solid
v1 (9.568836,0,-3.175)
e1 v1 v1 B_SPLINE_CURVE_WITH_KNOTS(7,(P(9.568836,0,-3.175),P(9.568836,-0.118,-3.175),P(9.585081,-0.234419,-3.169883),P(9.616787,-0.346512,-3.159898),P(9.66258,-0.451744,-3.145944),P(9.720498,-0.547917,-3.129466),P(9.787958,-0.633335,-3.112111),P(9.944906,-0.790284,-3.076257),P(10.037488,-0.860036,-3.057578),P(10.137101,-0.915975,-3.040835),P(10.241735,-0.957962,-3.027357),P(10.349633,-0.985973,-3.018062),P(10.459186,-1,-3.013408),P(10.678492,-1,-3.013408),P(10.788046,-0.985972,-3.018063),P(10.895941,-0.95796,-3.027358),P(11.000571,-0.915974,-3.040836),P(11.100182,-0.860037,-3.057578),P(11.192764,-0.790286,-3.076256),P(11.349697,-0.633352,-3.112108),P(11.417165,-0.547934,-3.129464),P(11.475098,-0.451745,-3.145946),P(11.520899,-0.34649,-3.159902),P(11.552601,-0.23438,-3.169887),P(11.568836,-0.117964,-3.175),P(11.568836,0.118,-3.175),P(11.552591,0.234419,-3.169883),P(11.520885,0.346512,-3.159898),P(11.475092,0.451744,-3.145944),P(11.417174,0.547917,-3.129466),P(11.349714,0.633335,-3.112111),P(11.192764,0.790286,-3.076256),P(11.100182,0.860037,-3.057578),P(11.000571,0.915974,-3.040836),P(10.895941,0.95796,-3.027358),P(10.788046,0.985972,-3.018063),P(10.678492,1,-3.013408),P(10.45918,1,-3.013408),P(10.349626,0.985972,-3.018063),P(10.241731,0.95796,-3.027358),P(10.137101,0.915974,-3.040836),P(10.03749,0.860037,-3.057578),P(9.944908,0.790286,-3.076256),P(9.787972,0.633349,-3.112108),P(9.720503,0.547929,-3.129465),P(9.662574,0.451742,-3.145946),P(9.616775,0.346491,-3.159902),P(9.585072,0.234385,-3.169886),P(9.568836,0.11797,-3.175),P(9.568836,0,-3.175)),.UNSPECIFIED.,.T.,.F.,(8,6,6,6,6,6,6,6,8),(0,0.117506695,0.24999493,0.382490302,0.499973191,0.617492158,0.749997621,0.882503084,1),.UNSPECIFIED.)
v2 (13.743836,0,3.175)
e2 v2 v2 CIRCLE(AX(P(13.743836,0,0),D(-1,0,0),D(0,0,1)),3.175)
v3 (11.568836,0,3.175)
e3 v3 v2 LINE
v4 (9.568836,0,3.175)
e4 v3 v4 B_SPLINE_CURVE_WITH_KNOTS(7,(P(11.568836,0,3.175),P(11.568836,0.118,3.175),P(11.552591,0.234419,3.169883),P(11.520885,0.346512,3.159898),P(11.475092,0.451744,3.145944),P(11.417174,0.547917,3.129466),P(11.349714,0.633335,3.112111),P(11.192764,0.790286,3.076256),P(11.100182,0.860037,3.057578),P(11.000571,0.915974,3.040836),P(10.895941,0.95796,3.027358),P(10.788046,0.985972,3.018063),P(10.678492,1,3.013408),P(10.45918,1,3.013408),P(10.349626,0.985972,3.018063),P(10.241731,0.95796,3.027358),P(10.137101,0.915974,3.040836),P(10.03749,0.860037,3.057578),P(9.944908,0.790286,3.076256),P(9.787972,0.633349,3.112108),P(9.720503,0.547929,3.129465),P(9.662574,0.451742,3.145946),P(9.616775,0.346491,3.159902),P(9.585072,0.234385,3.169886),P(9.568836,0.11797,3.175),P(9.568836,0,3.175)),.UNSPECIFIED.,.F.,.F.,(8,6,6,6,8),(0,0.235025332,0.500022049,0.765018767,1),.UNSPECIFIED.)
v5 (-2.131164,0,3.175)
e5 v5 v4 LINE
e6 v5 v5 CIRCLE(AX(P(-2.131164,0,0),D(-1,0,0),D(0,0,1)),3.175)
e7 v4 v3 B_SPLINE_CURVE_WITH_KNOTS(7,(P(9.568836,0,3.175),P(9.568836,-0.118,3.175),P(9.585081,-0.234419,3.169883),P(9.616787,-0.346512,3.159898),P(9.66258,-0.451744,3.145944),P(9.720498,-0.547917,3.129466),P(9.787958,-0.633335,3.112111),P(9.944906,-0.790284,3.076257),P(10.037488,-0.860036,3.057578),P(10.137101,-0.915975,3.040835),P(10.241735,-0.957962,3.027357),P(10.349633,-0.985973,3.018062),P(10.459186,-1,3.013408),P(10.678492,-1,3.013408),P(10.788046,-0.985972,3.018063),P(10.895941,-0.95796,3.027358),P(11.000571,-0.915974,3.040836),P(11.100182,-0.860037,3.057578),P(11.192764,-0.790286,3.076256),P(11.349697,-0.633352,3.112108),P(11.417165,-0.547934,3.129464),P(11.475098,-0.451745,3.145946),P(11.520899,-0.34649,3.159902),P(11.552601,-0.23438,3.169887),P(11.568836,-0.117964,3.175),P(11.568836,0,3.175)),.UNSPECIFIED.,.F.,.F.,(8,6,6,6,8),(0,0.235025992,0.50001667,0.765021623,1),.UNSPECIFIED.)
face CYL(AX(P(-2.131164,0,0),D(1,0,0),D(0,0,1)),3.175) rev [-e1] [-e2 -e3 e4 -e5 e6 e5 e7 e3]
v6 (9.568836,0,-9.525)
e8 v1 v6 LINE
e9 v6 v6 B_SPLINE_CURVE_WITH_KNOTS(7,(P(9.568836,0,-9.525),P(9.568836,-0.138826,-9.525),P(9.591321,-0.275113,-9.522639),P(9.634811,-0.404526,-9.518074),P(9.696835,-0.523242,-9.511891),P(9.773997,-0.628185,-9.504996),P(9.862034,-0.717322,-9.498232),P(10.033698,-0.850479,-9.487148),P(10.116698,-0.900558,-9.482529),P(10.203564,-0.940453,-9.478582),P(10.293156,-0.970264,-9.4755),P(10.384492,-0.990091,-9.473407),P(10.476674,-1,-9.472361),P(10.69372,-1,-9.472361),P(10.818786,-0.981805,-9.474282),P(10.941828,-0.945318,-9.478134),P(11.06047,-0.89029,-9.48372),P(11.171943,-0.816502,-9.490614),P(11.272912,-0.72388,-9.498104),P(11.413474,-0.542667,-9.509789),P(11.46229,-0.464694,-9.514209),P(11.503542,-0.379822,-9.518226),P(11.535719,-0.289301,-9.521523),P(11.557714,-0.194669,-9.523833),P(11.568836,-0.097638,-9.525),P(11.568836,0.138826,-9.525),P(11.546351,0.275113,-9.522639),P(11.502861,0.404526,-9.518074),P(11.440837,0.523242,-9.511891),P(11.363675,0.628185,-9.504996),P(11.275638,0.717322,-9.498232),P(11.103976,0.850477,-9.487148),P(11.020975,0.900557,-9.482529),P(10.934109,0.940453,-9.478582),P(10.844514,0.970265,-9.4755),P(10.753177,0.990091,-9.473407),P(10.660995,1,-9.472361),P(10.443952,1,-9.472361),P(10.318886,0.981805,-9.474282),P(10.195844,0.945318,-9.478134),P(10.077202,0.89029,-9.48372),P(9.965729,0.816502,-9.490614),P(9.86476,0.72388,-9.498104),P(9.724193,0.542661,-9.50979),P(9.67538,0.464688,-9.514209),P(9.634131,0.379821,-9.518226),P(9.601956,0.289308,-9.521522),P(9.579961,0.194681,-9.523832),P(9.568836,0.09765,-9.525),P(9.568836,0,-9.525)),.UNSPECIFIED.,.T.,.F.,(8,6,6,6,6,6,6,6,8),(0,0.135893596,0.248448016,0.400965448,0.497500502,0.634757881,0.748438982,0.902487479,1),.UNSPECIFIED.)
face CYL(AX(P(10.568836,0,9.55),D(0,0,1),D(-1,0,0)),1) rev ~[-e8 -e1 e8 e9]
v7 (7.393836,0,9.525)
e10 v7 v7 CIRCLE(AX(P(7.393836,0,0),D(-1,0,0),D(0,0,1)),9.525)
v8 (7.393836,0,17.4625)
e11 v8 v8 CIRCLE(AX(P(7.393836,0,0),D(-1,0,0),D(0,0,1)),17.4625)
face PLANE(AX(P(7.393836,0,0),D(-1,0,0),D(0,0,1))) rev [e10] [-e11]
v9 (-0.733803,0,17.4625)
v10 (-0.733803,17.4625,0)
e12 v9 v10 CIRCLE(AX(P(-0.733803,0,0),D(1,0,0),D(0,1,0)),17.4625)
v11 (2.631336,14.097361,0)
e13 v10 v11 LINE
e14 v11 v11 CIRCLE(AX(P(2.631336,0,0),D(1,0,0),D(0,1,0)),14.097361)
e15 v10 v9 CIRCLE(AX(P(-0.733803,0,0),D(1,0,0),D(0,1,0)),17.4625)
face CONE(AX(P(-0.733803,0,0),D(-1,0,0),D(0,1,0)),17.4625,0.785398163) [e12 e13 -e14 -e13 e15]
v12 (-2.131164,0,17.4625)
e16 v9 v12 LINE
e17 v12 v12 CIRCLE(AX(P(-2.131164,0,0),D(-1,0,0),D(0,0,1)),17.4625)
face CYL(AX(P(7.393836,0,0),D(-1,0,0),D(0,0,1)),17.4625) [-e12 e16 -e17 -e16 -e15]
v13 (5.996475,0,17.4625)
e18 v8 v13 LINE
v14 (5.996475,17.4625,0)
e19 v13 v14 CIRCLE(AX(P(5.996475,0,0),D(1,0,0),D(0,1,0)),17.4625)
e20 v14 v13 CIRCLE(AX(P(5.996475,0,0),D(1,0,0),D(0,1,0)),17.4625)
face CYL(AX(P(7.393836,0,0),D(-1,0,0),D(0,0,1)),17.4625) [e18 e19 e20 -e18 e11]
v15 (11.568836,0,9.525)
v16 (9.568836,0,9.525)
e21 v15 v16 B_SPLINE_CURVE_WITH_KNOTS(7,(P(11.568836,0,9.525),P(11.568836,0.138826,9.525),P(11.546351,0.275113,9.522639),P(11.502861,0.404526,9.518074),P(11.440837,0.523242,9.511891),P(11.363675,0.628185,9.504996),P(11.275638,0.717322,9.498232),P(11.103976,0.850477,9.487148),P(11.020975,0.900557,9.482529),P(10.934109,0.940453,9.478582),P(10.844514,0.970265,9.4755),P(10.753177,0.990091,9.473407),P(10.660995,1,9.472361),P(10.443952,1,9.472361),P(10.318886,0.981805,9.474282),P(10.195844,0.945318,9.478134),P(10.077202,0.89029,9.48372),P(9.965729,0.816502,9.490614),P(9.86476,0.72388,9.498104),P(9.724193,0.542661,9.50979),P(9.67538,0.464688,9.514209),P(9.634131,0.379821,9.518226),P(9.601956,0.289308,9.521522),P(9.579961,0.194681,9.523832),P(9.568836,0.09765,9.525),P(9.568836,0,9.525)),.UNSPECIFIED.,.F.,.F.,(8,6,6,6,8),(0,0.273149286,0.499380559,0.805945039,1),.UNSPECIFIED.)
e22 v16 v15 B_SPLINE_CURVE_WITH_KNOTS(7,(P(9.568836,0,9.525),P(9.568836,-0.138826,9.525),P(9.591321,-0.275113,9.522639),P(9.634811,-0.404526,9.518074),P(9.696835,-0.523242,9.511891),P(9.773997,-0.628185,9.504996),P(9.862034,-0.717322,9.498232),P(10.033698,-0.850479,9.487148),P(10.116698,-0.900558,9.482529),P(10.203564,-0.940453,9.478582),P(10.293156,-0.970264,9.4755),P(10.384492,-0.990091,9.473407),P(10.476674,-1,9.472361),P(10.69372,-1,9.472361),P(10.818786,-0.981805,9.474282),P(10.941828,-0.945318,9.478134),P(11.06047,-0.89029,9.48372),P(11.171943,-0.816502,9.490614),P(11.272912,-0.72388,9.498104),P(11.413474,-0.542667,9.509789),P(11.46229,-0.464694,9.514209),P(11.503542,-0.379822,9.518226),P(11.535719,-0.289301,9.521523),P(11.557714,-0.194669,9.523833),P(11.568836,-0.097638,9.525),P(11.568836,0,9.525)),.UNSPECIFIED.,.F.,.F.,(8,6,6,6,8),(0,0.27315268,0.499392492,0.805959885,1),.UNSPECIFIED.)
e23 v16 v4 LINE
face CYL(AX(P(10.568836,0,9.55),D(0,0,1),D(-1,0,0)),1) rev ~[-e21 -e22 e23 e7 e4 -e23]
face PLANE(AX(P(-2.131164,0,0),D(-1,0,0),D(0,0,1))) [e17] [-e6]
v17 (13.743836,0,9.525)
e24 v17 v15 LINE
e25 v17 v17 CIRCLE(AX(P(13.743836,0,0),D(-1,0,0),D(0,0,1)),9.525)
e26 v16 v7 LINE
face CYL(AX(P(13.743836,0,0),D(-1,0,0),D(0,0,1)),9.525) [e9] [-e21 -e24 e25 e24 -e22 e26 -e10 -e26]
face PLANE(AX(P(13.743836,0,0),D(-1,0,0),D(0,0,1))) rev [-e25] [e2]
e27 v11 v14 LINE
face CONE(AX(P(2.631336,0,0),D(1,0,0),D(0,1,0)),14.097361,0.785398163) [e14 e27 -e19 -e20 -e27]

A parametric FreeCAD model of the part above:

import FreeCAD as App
import Part
import Sketcher
from FreeCAD import Vector
Q = App.Units.Quantity


def add_polygon(sketch, points):
    """Adds a closed chain of lines whose ends are joined by coincident constraints."""
    first, n = sketch.GeometryCount, len(points)
    for a, b in zip(points, points[1:] + points[:1]):
        sketch.addGeometry(Part.LineSegment(App.Vector(*a, 0), App.Vector(*b, 0)), False)
    for i in range(n):
        sketch.addConstraint(Sketcher.Constraint("Coincident", first + i, 2, first + (i + 1) % n, 1))

doc = App.newDocument("Part")
body = doc.addObject("PartDesign::Body", "Body")

sketch1 = doc.addObject("Sketcher::SketchObject", "Sketch")
body.addObject(sketch1)
sketch1.AttachmentSupport = (doc.XZ_Plane, [""])
sketch1.MapMode = "FlatFace"
add_polygon(sketch1, [(-2.131164, 3.175), (13.743836, 3.175), (13.743836, 9.525), (7.393836, 9.525), (7.393836, 17.4625), (-2.131164, 17.4625)])
sketch1.addConstraint([
    Sketcher.Constraint("Horizontal", 0),
    Sketcher.Constraint("Vertical", 1),
    Sketcher.Constraint("Horizontal", 2),
    Sketcher.Constraint("Vertical", 3),
    Sketcher.Constraint("Horizontal", 4),
    Sketcher.Constraint("Vertical", 5),
    Sketcher.Constraint("Equal", 2, 1),
    Sketcher.Constraint("DistanceX", 2, 2, 2, 1, Q("0.25 in")),
    Sketcher.Constraint("DistanceX", 0, 1, 0, 2, Q("0.625 in")),
    Sketcher.Constraint("DistanceY", 3, 1, 3, 2, Q("0.3125 in")),
    Sketcher.Constraint("DistanceY", -1, 1, 0, 2, Q("0.125 in")),
    Sketcher.Constraint("DistanceX", -1, 1, 0, 2, Q("13.743836 mm")),
])
revolution = doc.addObject("PartDesign::Revolution", "Revolution")
body.addObject(revolution)
revolution.Profile = sketch1
revolution.ReferenceAxis = (sketch1, ["H_Axis"])
revolution.Angle = 360

sketch2 = doc.addObject("Sketcher::SketchObject", "Sketch001")
body.addObject(sketch2)
sketch2.AttachmentSupport = (doc.XY_Plane, [""])
sketch2.MapMode = "FlatFace"
sketch2.AttachmentOffset = App.Placement(Vector(0, 0, 9.55), App.Rotation())
sketch2.addGeometry(Part.Circle(Vector(10.568836, 0, 0), Vector(0, 0, 1), 1), False)
sketch2.addConstraint([
    Sketcher.Constraint("PointOnObject", 0, 3, -1),
    Sketcher.Constraint("Diameter", 0, Q("2 mm")),
    Sketcher.Constraint("DistanceX", -1, 1, 0, 3, Q("10.568836 mm")),
])
pocket1 = doc.addObject("PartDesign::Pocket", "Pocket")
body.addObject(pocket1)
pocket1.Profile = sketch2
pocket1.Type = "ThroughAll"

sketch3 = doc.addObject("Sketcher::SketchObject", "Sketch002")
body.addObject(sketch3)
sketch3.AttachmentSupport = (doc.XY_Plane, [""])
sketch3.MapMode = "FlatFace"
add_polygon(sketch3, [(5.996475, 17.4625), (-0.733803, 17.4625), (2.631336, 14.097361)])
sketch3.addConstraint([
    Sketcher.Constraint("Horizontal", 0),
    Sketcher.Constraint("Perpendicular", 1, 2),
    Sketcher.Constraint("Equal", 1, 2),
    Sketcher.Constraint("DistanceY", -1, 1, 0, 2, Q("0.6875 in")),
    Sketcher.Constraint("DistanceX", 0, 2, 0, 1, Q("6.730278 mm")),
    Sketcher.Constraint("DistanceX", 0, 2, -1, 1, Q("0.733803 mm")),
])
groove = doc.addObject("PartDesign::Groove", "Groove")
body.addObject(groove)
groove.Profile = sketch3
groove.ReferenceAxis = (sketch3, ["H_Axis"])
groove.Angle = 360

doc.recompute()
